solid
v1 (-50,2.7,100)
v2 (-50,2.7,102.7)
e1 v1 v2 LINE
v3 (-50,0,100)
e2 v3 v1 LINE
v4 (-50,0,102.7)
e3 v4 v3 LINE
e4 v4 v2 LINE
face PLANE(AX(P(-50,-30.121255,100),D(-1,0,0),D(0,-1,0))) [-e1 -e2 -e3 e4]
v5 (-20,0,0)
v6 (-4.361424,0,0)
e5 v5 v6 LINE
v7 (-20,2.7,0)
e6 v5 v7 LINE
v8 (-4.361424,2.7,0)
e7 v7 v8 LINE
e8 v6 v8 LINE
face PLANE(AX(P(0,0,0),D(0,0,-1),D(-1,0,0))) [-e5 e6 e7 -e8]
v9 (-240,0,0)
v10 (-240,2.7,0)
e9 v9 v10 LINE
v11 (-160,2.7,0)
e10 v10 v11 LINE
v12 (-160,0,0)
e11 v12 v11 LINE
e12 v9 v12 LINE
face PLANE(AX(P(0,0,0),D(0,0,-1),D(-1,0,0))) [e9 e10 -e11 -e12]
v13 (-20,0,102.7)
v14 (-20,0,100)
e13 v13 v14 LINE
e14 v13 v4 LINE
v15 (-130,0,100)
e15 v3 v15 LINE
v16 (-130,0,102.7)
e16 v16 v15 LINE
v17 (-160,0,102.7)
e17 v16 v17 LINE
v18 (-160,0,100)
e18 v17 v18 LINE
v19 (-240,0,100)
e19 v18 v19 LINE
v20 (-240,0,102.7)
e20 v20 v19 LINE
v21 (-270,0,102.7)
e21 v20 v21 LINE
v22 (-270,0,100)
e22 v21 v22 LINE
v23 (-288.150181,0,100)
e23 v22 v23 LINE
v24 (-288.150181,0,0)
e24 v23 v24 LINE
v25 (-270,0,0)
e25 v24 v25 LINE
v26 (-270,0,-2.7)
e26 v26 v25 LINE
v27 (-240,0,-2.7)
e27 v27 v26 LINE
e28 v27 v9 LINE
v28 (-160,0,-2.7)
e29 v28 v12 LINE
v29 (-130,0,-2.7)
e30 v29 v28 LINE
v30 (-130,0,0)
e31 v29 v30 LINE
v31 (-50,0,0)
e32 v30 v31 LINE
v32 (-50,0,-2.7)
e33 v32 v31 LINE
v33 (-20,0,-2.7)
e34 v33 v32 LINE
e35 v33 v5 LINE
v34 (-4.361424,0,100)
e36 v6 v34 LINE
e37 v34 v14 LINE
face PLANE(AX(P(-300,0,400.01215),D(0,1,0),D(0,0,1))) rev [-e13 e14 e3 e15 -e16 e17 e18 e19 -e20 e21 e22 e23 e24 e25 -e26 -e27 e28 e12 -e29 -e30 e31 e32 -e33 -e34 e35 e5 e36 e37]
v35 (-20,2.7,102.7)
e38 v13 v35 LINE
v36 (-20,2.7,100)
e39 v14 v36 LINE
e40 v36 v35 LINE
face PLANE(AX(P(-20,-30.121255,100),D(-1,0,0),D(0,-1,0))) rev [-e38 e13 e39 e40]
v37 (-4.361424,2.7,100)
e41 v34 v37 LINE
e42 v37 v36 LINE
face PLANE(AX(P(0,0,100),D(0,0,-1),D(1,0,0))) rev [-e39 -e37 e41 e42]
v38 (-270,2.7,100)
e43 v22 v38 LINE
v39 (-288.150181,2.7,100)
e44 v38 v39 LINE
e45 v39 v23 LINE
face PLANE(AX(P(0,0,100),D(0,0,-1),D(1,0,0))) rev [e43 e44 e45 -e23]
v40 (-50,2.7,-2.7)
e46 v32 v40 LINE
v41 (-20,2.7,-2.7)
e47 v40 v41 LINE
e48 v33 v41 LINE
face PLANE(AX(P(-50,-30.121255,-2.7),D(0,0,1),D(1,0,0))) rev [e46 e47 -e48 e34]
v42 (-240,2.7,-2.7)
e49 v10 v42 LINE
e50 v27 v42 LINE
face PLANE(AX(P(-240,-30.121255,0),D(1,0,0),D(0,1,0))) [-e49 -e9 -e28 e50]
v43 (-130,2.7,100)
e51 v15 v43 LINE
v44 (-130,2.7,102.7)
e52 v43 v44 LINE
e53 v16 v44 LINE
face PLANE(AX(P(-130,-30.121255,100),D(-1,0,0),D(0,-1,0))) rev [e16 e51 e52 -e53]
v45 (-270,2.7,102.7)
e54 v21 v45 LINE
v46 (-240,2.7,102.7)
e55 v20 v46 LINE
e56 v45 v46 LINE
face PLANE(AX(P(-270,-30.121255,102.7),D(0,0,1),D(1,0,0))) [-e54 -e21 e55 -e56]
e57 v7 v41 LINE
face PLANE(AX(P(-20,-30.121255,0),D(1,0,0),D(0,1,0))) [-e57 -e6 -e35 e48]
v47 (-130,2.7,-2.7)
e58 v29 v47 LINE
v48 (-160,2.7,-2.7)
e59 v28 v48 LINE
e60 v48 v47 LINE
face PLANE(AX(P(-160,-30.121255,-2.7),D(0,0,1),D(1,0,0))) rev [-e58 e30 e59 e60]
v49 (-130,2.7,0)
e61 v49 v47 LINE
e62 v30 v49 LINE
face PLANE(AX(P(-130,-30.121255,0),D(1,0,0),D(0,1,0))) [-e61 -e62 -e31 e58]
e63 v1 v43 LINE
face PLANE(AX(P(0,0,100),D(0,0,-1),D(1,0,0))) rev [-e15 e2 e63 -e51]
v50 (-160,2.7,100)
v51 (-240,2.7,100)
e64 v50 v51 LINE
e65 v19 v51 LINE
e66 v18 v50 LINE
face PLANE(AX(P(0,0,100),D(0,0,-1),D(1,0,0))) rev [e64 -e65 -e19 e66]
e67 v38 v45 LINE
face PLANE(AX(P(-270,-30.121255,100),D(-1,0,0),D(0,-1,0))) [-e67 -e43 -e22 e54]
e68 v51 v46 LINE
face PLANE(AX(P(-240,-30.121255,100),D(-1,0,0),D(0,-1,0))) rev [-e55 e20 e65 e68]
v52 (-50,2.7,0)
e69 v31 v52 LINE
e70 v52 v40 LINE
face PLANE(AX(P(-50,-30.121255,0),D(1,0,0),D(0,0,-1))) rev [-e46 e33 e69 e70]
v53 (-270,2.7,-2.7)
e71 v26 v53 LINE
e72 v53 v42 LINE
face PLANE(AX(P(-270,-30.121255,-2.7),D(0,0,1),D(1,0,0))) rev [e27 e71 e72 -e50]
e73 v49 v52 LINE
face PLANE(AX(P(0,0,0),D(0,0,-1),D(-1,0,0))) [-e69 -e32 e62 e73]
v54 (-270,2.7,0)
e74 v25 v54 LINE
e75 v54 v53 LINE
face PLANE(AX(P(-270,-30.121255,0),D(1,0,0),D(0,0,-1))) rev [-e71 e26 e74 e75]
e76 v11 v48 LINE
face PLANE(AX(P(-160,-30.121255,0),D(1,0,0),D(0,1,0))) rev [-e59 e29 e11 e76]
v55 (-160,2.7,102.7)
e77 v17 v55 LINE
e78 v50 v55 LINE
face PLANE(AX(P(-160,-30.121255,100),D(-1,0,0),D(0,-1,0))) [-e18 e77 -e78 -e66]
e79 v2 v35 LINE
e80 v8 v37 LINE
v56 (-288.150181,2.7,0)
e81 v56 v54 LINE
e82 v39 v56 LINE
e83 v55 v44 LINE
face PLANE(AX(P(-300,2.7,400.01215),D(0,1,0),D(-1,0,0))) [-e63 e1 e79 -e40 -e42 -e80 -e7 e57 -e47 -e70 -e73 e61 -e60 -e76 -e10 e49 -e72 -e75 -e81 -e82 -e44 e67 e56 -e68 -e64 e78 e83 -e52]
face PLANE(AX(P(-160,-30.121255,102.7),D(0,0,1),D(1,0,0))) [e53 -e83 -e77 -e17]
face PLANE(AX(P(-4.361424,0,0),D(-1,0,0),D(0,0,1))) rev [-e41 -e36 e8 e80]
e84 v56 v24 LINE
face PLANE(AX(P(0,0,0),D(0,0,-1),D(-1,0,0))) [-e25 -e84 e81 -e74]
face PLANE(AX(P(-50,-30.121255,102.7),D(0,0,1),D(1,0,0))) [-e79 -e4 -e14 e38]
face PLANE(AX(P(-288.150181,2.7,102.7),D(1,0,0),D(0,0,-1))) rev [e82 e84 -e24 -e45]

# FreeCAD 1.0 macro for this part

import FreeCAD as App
import Part
import Sketcher
Q = App.Units.Quantity

doc = App.newDocument("Part")
body = doc.addObject("PartDesign::Body", "Body")

sketch1 = body.newObject("Sketcher::SketchObject", "Sketch")
sketch1.AttachmentSupport = (doc.getObject("XY_Plane"), [""])
sketch1.MapMode = "FlatFace"
sketch1.addGeometry([
    Part.LineSegment(App.Vector(-300, 2.7, 0), App.Vector(-300, 0, 0)),
    Part.LineSegment(App.Vector(-300, 0, 0), App.Vector(0, 0, 0)),
    Part.LineSegment(App.Vector(0, 0, 0), App.Vector(0, 2.7, 0)),
    Part.LineSegment(App.Vector(0, 2.7, 0), App.Vector(-300, 2.7, 0)),
], False)
sketch1.addConstraint([
    Sketcher.Constraint("Coincident", 0, 2, 1, 1),
    Sketcher.Constraint("Coincident", 1, 2, 2, 1),
    Sketcher.Constraint("Coincident", 2, 2, 3, 1),
    Sketcher.Constraint("Coincident", 3, 2, 0, 1),
    Sketcher.Constraint("Vertical", 0),
    Sketcher.Constraint("Horizontal", 1),
    Sketcher.Constraint("Vertical", 2),
    Sketcher.Constraint("Horizontal", 3),
    Sketcher.Constraint("Coincident", 1, 2, -1, 1),
    Sketcher.Constraint("DistanceX", 1, 1, 1, 2, Q("300 mm")),
    Sketcher.Constraint("DistanceY", 0, 2, 0, 1, Q("2.7 mm")),
])
pad1 = body.newObject("PartDesign::Pad", "Pad")
pad1.Profile = sketch1
pad1.Length = 100

sketch2 = body.newObject("Sketcher::SketchObject", "Sketch001")
sketch2.AttachmentSupport = (doc.getObject("XZ_Plane"), [""])
sketch2.MapMode = "FlatFace"
sketch2.AttachmentOffset = App.Placement(App.Vector(0, 0, -2.7), App.Rotation())
sketch2.addGeometry([
    Part.LineSegment(App.Vector(-50, -2.7, 0), App.Vector(-50, 0, 0)),
    Part.LineSegment(App.Vector(-50, 0, 0), App.Vector(-20, 0, 0)),
    Part.LineSegment(App.Vector(-20, 0, 0), App.Vector(-20, -2.7, 0)),
    Part.LineSegment(App.Vector(-20, -2.7, 0), App.Vector(-50, -2.7, 0)),
    Part.LineSegment(App.Vector(-160, -2.7, 0), App.Vector(-160, 0, 0)),
    Part.LineSegment(App.Vector(-160, 0, 0), App.Vector(-130, 0, 0)),
    Part.LineSegment(App.Vector(-130, 0, 0), App.Vector(-130, -2.7, 0)),
    Part.LineSegment(App.Vector(-130, -2.7, 0), App.Vector(-160, -2.7, 0)),
    Part.LineSegment(App.Vector(-270, -2.7, 0), App.Vector(-270, 0, 0)),
    Part.LineSegment(App.Vector(-270, 0, 0), App.Vector(-240, 0, 0)),
    Part.LineSegment(App.Vector(-240, 0, 0), App.Vector(-240, -2.7, 0)),
    Part.LineSegment(App.Vector(-240, -2.7, 0), App.Vector(-270, -2.7, 0)),
    Part.LineSegment(App.Vector(-270, 100, 0), App.Vector(-270, 102.7, 0)),
    Part.LineSegment(App.Vector(-270, 102.7, 0), App.Vector(-240, 102.7, 0)),
    Part.LineSegment(App.Vector(-240, 102.7, 0), App.Vector(-240, 100, 0)),
    Part.LineSegment(App.Vector(-240, 100, 0), App.Vector(-270, 100, 0)),
    Part.LineSegment(App.Vector(-160, 100, 0), App.Vector(-160, 102.7, 0)),
    Part.LineSegment(App.Vector(-160, 102.7, 0), App.Vector(-130, 102.7, 0)),
    Part.LineSegment(App.Vector(-130, 102.7, 0), App.Vector(-130, 100, 0)),
    Part.LineSegment(App.Vector(-130, 100, 0), App.Vector(-160, 100, 0)),
    Part.LineSegment(App.Vector(-50, 100, 0), App.Vector(-50, 102.7, 0)),
    Part.LineSegment(App.Vector(-50, 102.7, 0), App.Vector(-20, 102.7, 0)),
    Part.LineSegment(App.Vector(-20, 102.7, 0), App.Vector(-20, 100, 0)),
    Part.LineSegment(App.Vector(-20, 100, 0), App.Vector(-50, 100, 0)),
], False)
sketch2.addConstraint([
    Sketcher.Constraint("Coincident", 0, 2, 1, 1),
    Sketcher.Constraint("Coincident", 1, 2, 2, 1),
    Sketcher.Constraint("Coincident", 2, 2, 3, 1),
    Sketcher.Constraint("Coincident", 3, 2, 0, 1),
    Sketcher.Constraint("Coincident", 4, 2, 5, 1),
    Sketcher.Constraint("Coincident", 5, 2, 6, 1),
    Sketcher.Constraint("Coincident", 6, 2, 7, 1),
    Sketcher.Constraint("Coincident", 7, 2, 4, 1),
    Sketcher.Constraint("Coincident", 8, 2, 9, 1),
    Sketcher.Constraint("Coincident", 9, 2, 10, 1),
    Sketcher.Constraint("Coincident", 10, 2, 11, 1),
    Sketcher.Constraint("Coincident", 11, 2, 8, 1),
    Sketcher.Constraint("Coincident", 12, 2, 13, 1),
    Sketcher.Constraint("Coincident", 13, 2, 14, 1),
    Sketcher.Constraint("Coincident", 14, 2, 15, 1),
    Sketcher.Constraint("Coincident", 15, 2, 12, 1),
    Sketcher.Constraint("Coincident", 16, 2, 17, 1),
    Sketcher.Constraint("Coincident", 17, 2, 18, 1),
    Sketcher.Constraint("Coincident", 18, 2, 19, 1),
    Sketcher.Constraint("Coincident", 19, 2, 16, 1),
    Sketcher.Constraint("Coincident", 20, 2, 21, 1),
    Sketcher.Constraint("Coincident", 21, 2, 22, 1),
    Sketcher.Constraint("Coincident", 22, 2, 23, 1),
    Sketcher.Constraint("Coincident", 23, 2, 20, 1),
    Sketcher.Constraint("Vertical", 0),
    Sketcher.Constraint("Horizontal", 1),
    Sketcher.Constraint("Vertical", 2),
    Sketcher.Constraint("Horizontal", 3),
    Sketcher.Constraint("Vertical", 4),
    Sketcher.Constraint("Horizontal", 5),
    Sketcher.Constraint("Vertical", 6),
    Sketcher.Constraint("Horizontal", 7),
    Sketcher.Constraint("Vertical", 8),
    Sketcher.Constraint("Horizontal", 9),
    Sketcher.Constraint("Vertical", 10),
    Sketcher.Constraint("Horizontal", 11),
    Sketcher.Constraint("Vertical", 12),
    Sketcher.Constraint("Horizontal", 13),
    Sketcher.Constraint("Vertical", 14),
    Sketcher.Constraint("Horizontal", 15),
    Sketcher.Constraint("Vertical", 16),
    Sketcher.Constraint("Horizontal", 17),
    Sketcher.Constraint("Vertical", 18),
    Sketcher.Constraint("Horizontal", 19),
    Sketcher.Constraint("Vertical", 20),
    Sketcher.Constraint("Horizontal", 21),
    Sketcher.Constraint("Vertical", 22),
    Sketcher.Constraint("Horizontal", 23),
    Sketcher.Constraint("PointOnObject", 0, 2, -1),
    Sketcher.Constraint("PointOnObject", 4, 2, -1),
    Sketcher.Constraint("PointOnObject", 8, 2, -1),
    Sketcher.Constraint("Horizontal", 3, 2, 6, 2),
    Sketcher.Constraint("Horizontal", 7, 2, 10, 2),
    Sketcher.Constraint("Horizontal", 13, 2, 16, 2),
    Sketcher.Constraint("Horizontal", 15, 2, 18, 2),
    Sketcher.Constraint("Horizontal", 17, 2, 20, 2),
    Sketcher.Constraint("Horizontal", 19, 2, 22, 2),
    Sketcher.Constraint("Vertical", 11, 2, 12, 2),
    Sketcher.Constraint("Vertical", 10, 2, 13, 2),
    Sketcher.Constraint("Vertical", 7, 2, 16, 2),
    Sketcher.Constraint("Vertical", 6, 2, 17, 2),
    Sketcher.Constraint("Vertical", 3, 2, 20, 2),
    Sketcher.Constraint("Vertical", 2, 2, 21, 2),
    Sketcher.Constraint("Equal", 3, 5),
    Sketcher.Constraint("Equal", 7, 9),
    Sketcher.Constraint("Equal", 10, 12),
    Sketcher.Constraint("DistanceX", 1, 1, 1, 2, Q("30 mm")),
    Sketcher.Constraint("DistanceY", 0, 1, 0, 2, Q("2.7 mm")),
    Sketcher.Constraint("DistanceX", 0, 2, -1, 1, Q("50 mm")),
    Sketcher.Constraint("DistanceX", 4, 2, -1, 1, Q("160 mm")),
    Sketcher.Constraint("DistanceX", 8, 2, -1, 1, Q("270 mm")),
    Sketcher.Constraint("DistanceY", -1, 1, 14, 2, Q("100 mm")),
])
pad2 = body.newObject("PartDesign::Pad", "Pad001")
pad2.Profile = sketch2
pad2.Length = 2.7

sketch3 = body.newObject("Sketcher::SketchObject", "Sketch002")
sketch3.AttachmentSupport = (doc.getObject("XY_Plane"), [""])
sketch3.MapMode = "FlatFace"
sketch3.addGeometry([
    Part.LineSegment(App.Vector(-288.150181, 2.7, 0), App.Vector(-288.150181, 0, 0)),
    Part.LineSegment(App.Vector(-288.150181, 0, 0), App.Vector(-300, 0, 0)),
    Part.LineSegment(App.Vector(-300, 0, 0), App.Vector(-300, 2.7, 0)),
    Part.LineSegment(App.Vector(-300, 2.7, 0), App.Vector(-288.150181, 2.7, 0)),
], False)
sketch3.addConstraint([
    Sketcher.Constraint("Coincident", 0, 2, 1, 1),
    Sketcher.Constraint("Coincident", 1, 2, 2, 1),
    Sketcher.Constraint("Coincident", 2, 2, 3, 1),
    Sketcher.Constraint("Coincident", 3, 2, 0, 1),
    Sketcher.Constraint("Vertical", 0),
    Sketcher.Constraint("Horizontal", 1),
    Sketcher.Constraint("Vertical", 2),
    Sketcher.Constraint("Horizontal", 3),
    Sketcher.Constraint("PointOnObject", 0, 2, -1),
    Sketcher.Constraint("DistanceY", 0, 2, 0, 1, Q("2.7 mm")),
    Sketcher.Constraint("DistanceX", 1, 2, -1, 1, Q("300 mm")),
    Sketcher.Constraint("DistanceX", 1, 2, 1, 1, Q("11.849819 mm")),
])
pocket1 = body.newObject("PartDesign::Pocket", "Pocket")
pocket1.Profile = sketch3
pocket1.Type = "ThroughAll"
pocket1.Reversed = True

sketch4 = body.newObject("Sketcher::SketchObject", "Sketch003")
sketch4.AttachmentSupport = (doc.getObject("XZ_Plane"), [""])
sketch4.MapMode = "FlatFace"
sketch4.AttachmentOffset = App.Placement(App.Vector(0, 0, -2.7), App.Rotation())
sketch4.addGeometry([
    Part.LineSegment(App.Vector(-4.361424, 0, 0), App.Vector(-4.361424, 100, 0)),
    Part.LineSegment(App.Vector(-4.361424, 100, 0), App.Vector(0, 100, 0)),
    Part.LineSegment(App.Vector(0, 100, 0), App.Vector(0, 0, 0)),
    Part.LineSegment(App.Vector(0, 0, 0), App.Vector(-4.361424, 0, 0)),
], False)
sketch4.addConstraint([
    Sketcher.Constraint("Coincident", 0, 2, 1, 1),
    Sketcher.Constraint("Coincident", 1, 2, 2, 1),
    Sketcher.Constraint("Coincident", 2, 2, 3, 1),
    Sketcher.Constraint("Coincident", 3, 2, 0, 1),
    Sketcher.Constraint("Vertical", 0),
    Sketcher.Constraint("Horizontal", 1),
    Sketcher.Constraint("Vertical", 2),
    Sketcher.Constraint("Horizontal", 3),
    Sketcher.Constraint("Coincident", 2, 2, -1, 1),
    Sketcher.Constraint("DistanceY", 0, 1, 0, 2, Q("100 mm")),
    Sketcher.Constraint("DistanceX", 1, 1, 1, 2, Q("4.361424 mm")),
])
pocket2 = body.newObject("PartDesign::Pocket", "Pocket001")
pocket2.Profile = sketch4
pocket2.Length = 2.7
pocket2.Reversed = True

doc.recompute()
